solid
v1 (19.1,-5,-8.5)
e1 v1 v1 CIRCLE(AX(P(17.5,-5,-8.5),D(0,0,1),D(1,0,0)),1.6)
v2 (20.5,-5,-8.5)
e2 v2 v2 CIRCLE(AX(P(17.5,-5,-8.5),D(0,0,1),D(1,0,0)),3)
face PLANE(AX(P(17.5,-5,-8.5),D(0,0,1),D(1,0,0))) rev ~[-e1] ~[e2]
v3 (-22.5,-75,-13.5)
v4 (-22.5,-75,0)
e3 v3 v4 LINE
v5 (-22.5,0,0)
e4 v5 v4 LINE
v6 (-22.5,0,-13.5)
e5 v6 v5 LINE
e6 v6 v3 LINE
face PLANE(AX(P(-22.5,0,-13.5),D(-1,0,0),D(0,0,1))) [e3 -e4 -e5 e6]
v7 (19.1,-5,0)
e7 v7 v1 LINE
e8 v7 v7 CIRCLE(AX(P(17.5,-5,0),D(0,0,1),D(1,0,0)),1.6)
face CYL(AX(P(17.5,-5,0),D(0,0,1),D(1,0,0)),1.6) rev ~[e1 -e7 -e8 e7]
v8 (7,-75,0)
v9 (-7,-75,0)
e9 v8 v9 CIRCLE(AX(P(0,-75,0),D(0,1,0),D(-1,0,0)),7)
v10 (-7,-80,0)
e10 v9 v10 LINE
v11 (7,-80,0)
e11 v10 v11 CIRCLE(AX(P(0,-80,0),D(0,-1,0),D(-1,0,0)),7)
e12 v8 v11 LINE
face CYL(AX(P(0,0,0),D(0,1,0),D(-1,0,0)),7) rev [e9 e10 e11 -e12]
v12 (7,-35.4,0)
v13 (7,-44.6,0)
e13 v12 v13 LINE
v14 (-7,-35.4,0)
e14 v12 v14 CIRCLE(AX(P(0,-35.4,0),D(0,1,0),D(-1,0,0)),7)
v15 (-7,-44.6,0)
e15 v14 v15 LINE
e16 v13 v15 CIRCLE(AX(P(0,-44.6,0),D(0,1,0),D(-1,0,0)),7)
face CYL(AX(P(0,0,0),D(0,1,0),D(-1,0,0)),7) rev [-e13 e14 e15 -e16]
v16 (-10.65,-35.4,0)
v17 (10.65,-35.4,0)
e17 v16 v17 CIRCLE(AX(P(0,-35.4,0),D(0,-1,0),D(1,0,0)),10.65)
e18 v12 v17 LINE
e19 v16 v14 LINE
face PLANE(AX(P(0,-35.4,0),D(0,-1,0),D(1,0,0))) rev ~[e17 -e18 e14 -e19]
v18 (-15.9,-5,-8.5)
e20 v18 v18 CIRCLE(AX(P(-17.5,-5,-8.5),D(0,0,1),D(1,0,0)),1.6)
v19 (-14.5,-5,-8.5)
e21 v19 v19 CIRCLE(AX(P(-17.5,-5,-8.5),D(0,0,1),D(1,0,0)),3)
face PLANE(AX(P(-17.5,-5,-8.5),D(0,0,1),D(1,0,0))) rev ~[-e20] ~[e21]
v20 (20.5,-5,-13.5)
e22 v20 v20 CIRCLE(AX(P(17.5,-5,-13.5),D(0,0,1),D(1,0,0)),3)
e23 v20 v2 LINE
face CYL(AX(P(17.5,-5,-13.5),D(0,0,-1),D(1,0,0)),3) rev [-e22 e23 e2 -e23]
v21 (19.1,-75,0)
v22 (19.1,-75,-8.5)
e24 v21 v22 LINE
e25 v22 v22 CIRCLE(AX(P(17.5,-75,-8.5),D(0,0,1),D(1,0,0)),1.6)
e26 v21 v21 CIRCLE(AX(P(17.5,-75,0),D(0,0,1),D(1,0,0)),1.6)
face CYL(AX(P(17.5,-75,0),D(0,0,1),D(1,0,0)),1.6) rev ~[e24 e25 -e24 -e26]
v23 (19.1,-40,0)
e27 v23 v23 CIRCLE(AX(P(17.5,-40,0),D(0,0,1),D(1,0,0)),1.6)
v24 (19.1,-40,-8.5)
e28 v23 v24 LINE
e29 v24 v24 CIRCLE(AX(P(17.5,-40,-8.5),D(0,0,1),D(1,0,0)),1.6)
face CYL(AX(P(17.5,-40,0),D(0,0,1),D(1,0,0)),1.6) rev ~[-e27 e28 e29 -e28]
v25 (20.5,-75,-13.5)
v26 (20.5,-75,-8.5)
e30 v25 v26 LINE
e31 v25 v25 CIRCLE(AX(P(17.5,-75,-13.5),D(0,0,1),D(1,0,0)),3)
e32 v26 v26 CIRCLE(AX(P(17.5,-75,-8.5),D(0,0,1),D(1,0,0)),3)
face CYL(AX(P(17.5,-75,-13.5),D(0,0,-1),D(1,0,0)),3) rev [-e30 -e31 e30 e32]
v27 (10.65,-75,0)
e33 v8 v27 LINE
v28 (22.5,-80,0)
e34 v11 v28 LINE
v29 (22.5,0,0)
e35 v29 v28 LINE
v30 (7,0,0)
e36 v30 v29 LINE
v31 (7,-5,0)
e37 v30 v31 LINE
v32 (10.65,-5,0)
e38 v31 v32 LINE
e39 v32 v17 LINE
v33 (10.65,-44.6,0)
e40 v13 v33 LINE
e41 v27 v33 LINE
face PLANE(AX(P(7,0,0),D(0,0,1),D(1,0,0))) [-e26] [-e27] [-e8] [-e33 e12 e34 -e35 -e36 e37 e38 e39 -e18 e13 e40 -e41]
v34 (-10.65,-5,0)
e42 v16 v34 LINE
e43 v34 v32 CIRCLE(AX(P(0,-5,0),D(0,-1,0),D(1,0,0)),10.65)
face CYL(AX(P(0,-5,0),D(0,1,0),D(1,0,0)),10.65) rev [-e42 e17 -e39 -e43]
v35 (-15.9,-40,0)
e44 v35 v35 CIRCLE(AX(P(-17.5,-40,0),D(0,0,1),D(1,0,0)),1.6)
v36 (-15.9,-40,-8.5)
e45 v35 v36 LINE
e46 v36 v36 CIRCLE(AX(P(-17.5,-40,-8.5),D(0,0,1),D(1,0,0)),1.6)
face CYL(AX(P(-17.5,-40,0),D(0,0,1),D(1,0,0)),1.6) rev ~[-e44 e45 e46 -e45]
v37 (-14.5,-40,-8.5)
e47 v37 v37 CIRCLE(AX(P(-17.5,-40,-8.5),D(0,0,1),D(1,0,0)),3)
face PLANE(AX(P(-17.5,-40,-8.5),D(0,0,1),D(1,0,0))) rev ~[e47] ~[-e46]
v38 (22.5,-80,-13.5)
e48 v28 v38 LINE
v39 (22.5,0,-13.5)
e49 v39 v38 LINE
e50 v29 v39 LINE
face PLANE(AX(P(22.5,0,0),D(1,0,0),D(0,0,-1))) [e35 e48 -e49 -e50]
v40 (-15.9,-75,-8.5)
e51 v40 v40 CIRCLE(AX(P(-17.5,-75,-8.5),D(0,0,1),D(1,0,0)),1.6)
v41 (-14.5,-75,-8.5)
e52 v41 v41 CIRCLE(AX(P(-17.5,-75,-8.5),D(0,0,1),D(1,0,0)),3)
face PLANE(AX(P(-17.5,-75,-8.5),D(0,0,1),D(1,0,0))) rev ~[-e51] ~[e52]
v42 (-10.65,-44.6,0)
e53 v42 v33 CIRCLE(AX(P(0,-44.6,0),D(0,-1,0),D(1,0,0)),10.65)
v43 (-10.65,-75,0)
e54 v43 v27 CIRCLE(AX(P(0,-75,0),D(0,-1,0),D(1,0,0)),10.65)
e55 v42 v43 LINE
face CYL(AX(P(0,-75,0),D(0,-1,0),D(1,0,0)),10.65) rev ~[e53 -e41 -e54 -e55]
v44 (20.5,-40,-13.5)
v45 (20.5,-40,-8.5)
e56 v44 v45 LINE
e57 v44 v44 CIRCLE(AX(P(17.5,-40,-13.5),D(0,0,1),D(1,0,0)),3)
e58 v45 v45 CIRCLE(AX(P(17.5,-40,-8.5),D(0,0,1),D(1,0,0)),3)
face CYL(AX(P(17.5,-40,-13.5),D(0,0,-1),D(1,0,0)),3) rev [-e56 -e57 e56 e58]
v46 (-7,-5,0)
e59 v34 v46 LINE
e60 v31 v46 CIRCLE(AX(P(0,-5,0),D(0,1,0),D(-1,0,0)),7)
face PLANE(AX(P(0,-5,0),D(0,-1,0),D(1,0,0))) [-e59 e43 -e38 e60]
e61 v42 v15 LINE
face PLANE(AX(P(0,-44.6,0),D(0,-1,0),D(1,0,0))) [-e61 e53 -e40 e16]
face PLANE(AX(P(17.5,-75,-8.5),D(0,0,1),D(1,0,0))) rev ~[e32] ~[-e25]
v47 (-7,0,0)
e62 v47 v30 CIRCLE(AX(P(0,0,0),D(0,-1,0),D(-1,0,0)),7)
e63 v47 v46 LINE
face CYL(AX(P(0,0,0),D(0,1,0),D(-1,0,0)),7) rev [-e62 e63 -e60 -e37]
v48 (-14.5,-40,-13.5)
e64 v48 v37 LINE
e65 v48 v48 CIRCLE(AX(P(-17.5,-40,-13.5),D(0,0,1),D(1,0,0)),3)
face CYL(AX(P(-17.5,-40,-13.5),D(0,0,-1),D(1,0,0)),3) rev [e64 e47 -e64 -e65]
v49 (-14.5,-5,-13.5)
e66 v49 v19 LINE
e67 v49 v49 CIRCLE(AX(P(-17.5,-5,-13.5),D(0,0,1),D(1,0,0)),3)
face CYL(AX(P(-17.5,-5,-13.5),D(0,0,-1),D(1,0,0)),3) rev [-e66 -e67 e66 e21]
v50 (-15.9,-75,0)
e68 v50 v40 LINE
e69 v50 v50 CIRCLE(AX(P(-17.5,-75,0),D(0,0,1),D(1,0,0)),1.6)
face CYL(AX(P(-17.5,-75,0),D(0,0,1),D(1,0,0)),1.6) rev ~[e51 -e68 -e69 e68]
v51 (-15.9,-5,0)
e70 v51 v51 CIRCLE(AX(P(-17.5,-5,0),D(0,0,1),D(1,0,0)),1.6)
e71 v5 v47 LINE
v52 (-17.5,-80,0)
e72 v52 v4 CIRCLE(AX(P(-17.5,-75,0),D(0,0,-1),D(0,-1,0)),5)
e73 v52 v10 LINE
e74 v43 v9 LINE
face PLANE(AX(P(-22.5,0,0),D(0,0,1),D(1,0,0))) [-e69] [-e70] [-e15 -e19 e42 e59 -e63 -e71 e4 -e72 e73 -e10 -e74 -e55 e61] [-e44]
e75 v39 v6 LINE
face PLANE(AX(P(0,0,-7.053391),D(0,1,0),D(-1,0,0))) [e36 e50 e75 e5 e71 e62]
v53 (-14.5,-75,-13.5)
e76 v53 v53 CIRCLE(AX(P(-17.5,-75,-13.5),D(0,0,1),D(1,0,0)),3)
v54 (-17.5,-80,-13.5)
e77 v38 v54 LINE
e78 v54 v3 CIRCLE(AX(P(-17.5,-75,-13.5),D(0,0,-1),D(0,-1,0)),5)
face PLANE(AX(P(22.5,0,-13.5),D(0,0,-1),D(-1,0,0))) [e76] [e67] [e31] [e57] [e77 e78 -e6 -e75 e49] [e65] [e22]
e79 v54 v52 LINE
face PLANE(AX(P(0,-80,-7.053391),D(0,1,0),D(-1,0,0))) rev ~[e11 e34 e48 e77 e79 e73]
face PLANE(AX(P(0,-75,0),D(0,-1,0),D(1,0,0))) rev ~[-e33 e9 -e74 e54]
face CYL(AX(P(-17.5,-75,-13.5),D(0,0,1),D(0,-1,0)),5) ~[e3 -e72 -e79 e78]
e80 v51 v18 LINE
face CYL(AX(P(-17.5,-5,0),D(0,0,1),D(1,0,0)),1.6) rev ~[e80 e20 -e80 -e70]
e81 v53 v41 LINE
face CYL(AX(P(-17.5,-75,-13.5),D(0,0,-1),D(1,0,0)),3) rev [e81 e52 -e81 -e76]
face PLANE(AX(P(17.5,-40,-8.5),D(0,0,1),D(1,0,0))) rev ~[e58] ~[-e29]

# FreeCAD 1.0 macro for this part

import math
import FreeCAD as App
import Part
import Sketcher
from FreeCAD import Vector
Q = App.Units.Quantity


def edges_at(feature, points):
    """Names of the edges that pass closest to the given points."""
    edges = feature.Shape.Edges
    near = lambda p: min(range(len(edges)), key=lambda i: edges[i].distToShape(Part.Vertex(*p))[0])
    return sorted({f"Edge{near(p) + 1}" for p in points})

doc = App.newDocument("Part")
body = doc.addObject("PartDesign::Body", "Body")

# Sketch on XZ plane
sketch1 = body.newObject("Sketcher::SketchObject", "Sketch")
sketch1.AttachmentSupport = (doc.getObject("XZ_Plane"), [""])
sketch1.MapMode = "FlatFace"
sketch1.addGeometry(Part.LineSegment(Vector(22, -14, 0), Vector(22, 0, 0)), False)
sketch1.addGeometry(Part.LineSegment(Vector(22, 0, 0), Vector(7, 0, 0)), False)
sketch1.addGeometry(Part.ArcOfCircle(Part.Circle(Vector(0, 0, 0), Vector(0, 0, 1), 7), math.radians(180), math.radians(360)), False)
sketch1.addGeometry(Part.LineSegment(Vector(-7, 0, 0), Vector(-22, 0, 0)), False)
sketch1.addGeometry(Part.LineSegment(Vector(-22, 0, 0), Vector(-22, -14, 0)), False)
sketch1.addGeometry(Part.LineSegment(Vector(-22, -14, 0), Vector(22, -14, 0)), False)
sketch1.addConstraint(Sketcher.Constraint("Coincident", 0, 2, 1, 1))
sketch1.addConstraint(Sketcher.Constraint("Coincident", 1, 2, 2, 2))
sketch1.addConstraint(Sketcher.Constraint("Coincident", 2, 1, 3, 1))
sketch1.addConstraint(Sketcher.Constraint("Coincident", 3, 2, 4, 1))
sketch1.addConstraint(Sketcher.Constraint("Coincident", 4, 2, 5, 1))
sketch1.addConstraint(Sketcher.Constraint("Coincident", 5, 2, 0, 1))
sketch1.addConstraint(Sketcher.Constraint("Vertical", 0))
sketch1.addConstraint(Sketcher.Constraint("Horizontal", 1))
sketch1.addConstraint(Sketcher.Constraint("Horizontal", 3))
sketch1.addConstraint(Sketcher.Constraint("Vertical", 4))
sketch1.addConstraint(Sketcher.Constraint("Horizontal", 5))
sketch1.addConstraint(Sketcher.Constraint("Coincident", 2, 3, -1, 1))
sketch1.addConstraint(Sketcher.Constraint("Symmetric", 0, 2, 3, 2, -1, 1))
sketch1.addConstraint(Sketcher.Constraint("PointOnObject", 0, 2, -1))
sketch1.addConstraint(Sketcher.Constraint("Radius", 2, Q("7 mm")))
sketch1.addConstraint(Sketcher.Constraint("DistanceX", 5, 1, 5, 2, Q("45 mm")))
sketch1.addConstraint(Sketcher.Constraint("DistanceY", 0, 1, 0, 2, Q("13.5 mm")))
pad1 = body.newObject("PartDesign::Pad", "Pad")
pad1.Profile = sketch1
pad1.Length = 80

# Sketch on XY plane
sketch2 = body.newObject("Sketcher::SketchObject", "Sketch001")
sketch2.AttachmentSupport = (doc.getObject("XY_Plane"), [""])
sketch2.MapMode = "FlatFace"
sketch2.addGeometry(Part.Circle(Vector(-17.5, -5, 0), Vector(0, 0, 1), 1.6), False)
sketch2.addGeometry(Part.Circle(Vector(-17.5, -40, 0), Vector(0, 0, 1), 1.6), False)
sketch2.addGeometry(Part.Circle(Vector(-17.5, -75, 0), Vector(0, 0, 1), 1.6), False)
sketch2.addGeometry(Part.Circle(Vector(17.5, -5, 0), Vector(0, 0, 1), 1.6), False)
sketch2.addGeometry(Part.Circle(Vector(17.5, -40, 0), Vector(0, 0, 1), 1.6), False)
sketch2.addGeometry(Part.Circle(Vector(17.5, -75, 0), Vector(0, 0, 1), 1.6), False)
sketch2.addConstraint(Sketcher.Constraint("Equal", 0, 1))
sketch2.addConstraint(Sketcher.Constraint("Equal", 1, 2))
sketch2.addConstraint(Sketcher.Constraint("Equal", 2, 3))
sketch2.addConstraint(Sketcher.Constraint("Equal", 3, 4))
sketch2.addConstraint(Sketcher.Constraint("Equal", 4, 5))
sketch2.addConstraint(Sketcher.Constraint("Symmetric", 0, 3, 3, 3, -2))
sketch2.addConstraint(Sketcher.Constraint("Symmetric", 1, 3, 4, 3, -2))
sketch2.addConstraint(Sketcher.Constraint("Symmetric", 2, 3, 5, 3, -2))
sketch2.addConstraint(Sketcher.Constraint("Vertical", 0, 3, 1, 3))
sketch2.addConstraint(Sketcher.Constraint("Vertical", 1, 3, 2, 3))
sketch2.addConstraint(Sketcher.Constraint("Diameter", 0, Q("3.2 mm")))
sketch2.addConstraint(Sketcher.Constraint("DistanceY", 0, 3, -1, 1, Q("5 mm")))
sketch2.addConstraint(Sketcher.Constraint("DistanceY", 1, 3, -1, 1, Q("40 mm")))
sketch2.addConstraint(Sketcher.Constraint("DistanceY", 2, 3, -1, 1, Q("75 mm")))
sketch2.addConstraint(Sketcher.Constraint("DistanceX", 0, 3, 3, 3, Q("35 mm")))
pocket1 = body.newObject("PartDesign::Pocket", "Pocket")
pocket1.Profile = sketch2
pocket1.Type = "ThroughAll"

# Sketch on XY plane
sketch3 = body.newObject("Sketcher::SketchObject", "Sketch002")
sketch3.AttachmentSupport = (doc.getObject("XY_Plane"), [""])
sketch3.MapMode = "FlatFace"
sketch3.AttachmentOffset = App.Placement(Vector(0, 0, -13.5), App.Rotation())
sketch3.addGeometry(Part.Circle(Vector(-17.5, -5, 0), Vector(0, 0, 1), 3), False)
sketch3.addGeometry(Part.Circle(Vector(-17.5, -40, 0), Vector(0, 0, 1), 3), False)
sketch3.addGeometry(Part.Circle(Vector(-17.5, -75, 0), Vector(0, 0, 1), 3), False)
sketch3.addGeometry(Part.Circle(Vector(17.5, -5, 0), Vector(0, 0, 1), 3), False)
sketch3.addGeometry(Part.Circle(Vector(17.5, -40, 0), Vector(0, 0, 1), 3), False)
sketch3.addGeometry(Part.Circle(Vector(17.5, -75, 0), Vector(0, 0, 1), 3), False)
sketch3.addConstraint(Sketcher.Constraint("Equal", 0, 1))
sketch3.addConstraint(Sketcher.Constraint("Equal", 1, 2))
sketch3.addConstraint(Sketcher.Constraint("Equal", 2, 3))
sketch3.addConstraint(Sketcher.Constraint("Equal", 3, 4))
sketch3.addConstraint(Sketcher.Constraint("Equal", 4, 5))
sketch3.addConstraint(Sketcher.Constraint("Symmetric", 0, 3, 3, 3, -2))
sketch3.addConstraint(Sketcher.Constraint("Symmetric", 1, 3, 4, 3, -2))
sketch3.addConstraint(Sketcher.Constraint("Symmetric", 2, 3, 5, 3, -2))
sketch3.addConstraint(Sketcher.Constraint("Vertical", 0, 3, 1, 3))
sketch3.addConstraint(Sketcher.Constraint("Vertical", 1, 3, 2, 3))
sketch3.addConstraint(Sketcher.Constraint("Diameter", 0, Q("6 mm")))
sketch3.addConstraint(Sketcher.Constraint("DistanceY", 0, 3, -1, 1, Q("5 mm")))
sketch3.addConstraint(Sketcher.Constraint("DistanceY", 1, 3, -1, 1, Q("40 mm")))
sketch3.addConstraint(Sketcher.Constraint("DistanceY", 2, 3, -1, 1, Q("75 mm")))
sketch3.addConstraint(Sketcher.Constraint("DistanceX", 0, 3, 3, 3, Q("35 mm")))
pocket2 = body.newObject("PartDesign::Pocket", "Pocket001")
pocket2.Profile = sketch3
pocket2.Length = 5
pocket2.Reversed = True

# Sketch on XZ plane
sketch4 = body.newObject("Sketcher::SketchObject", "Sketch003")
sketch4.AttachmentSupport = (doc.getObject("XZ_Plane"), [""])
sketch4.MapMode = "FlatFace"
sketch4.AttachmentOffset = App.Placement(Vector(0, 0, 5), App.Rotation())
sketch4.addGeometry(Part.Circle(Vector(0, 0, 0), Vector(0, 0, 1), 11), False)
sketch4.addConstraint(Sketcher.Constraint("Coincident", 0, 3, -1, 1))
sketch4.addConstraint(Sketcher.Constraint("Diameter", 0, Q("21.3 mm")))
pocket3 = body.newObject("PartDesign::Pocket", "Pocket002")
pocket3.Profile = sketch4
pocket3.Length = 30.4
pocket3.Reversed = True

# Sketch on XZ plane
sketch5 = body.newObject("Sketcher::SketchObject", "Sketch004")
sketch5.AttachmentSupport = (doc.getObject("XZ_Plane"), [""])
sketch5.MapMode = "FlatFace"
sketch5.AttachmentOffset = App.Placement(Vector(0, 0, 75), App.Rotation())
sketch5.addGeometry(Part.Circle(Vector(0, 0, 0), Vector(0, 0, 1), 11), False)
sketch5.addConstraint(Sketcher.Constraint("Coincident", 0, 3, -1, 1))
sketch5.addConstraint(Sketcher.Constraint("Diameter", 0, Q("21.3 mm")))
pocket4 = body.newObject("PartDesign::Pocket", "Pocket003")
pocket4.Profile = sketch5
pocket4.Length = 30.4
doc.recompute()

fillet = body.newObject("PartDesign::Fillet", "Fillet")
fillet.Base = (pocket4, edges_at(pocket4, [(-22.5, -80, -6.75)]))
fillet.Radius = 5

doc.recompute()
